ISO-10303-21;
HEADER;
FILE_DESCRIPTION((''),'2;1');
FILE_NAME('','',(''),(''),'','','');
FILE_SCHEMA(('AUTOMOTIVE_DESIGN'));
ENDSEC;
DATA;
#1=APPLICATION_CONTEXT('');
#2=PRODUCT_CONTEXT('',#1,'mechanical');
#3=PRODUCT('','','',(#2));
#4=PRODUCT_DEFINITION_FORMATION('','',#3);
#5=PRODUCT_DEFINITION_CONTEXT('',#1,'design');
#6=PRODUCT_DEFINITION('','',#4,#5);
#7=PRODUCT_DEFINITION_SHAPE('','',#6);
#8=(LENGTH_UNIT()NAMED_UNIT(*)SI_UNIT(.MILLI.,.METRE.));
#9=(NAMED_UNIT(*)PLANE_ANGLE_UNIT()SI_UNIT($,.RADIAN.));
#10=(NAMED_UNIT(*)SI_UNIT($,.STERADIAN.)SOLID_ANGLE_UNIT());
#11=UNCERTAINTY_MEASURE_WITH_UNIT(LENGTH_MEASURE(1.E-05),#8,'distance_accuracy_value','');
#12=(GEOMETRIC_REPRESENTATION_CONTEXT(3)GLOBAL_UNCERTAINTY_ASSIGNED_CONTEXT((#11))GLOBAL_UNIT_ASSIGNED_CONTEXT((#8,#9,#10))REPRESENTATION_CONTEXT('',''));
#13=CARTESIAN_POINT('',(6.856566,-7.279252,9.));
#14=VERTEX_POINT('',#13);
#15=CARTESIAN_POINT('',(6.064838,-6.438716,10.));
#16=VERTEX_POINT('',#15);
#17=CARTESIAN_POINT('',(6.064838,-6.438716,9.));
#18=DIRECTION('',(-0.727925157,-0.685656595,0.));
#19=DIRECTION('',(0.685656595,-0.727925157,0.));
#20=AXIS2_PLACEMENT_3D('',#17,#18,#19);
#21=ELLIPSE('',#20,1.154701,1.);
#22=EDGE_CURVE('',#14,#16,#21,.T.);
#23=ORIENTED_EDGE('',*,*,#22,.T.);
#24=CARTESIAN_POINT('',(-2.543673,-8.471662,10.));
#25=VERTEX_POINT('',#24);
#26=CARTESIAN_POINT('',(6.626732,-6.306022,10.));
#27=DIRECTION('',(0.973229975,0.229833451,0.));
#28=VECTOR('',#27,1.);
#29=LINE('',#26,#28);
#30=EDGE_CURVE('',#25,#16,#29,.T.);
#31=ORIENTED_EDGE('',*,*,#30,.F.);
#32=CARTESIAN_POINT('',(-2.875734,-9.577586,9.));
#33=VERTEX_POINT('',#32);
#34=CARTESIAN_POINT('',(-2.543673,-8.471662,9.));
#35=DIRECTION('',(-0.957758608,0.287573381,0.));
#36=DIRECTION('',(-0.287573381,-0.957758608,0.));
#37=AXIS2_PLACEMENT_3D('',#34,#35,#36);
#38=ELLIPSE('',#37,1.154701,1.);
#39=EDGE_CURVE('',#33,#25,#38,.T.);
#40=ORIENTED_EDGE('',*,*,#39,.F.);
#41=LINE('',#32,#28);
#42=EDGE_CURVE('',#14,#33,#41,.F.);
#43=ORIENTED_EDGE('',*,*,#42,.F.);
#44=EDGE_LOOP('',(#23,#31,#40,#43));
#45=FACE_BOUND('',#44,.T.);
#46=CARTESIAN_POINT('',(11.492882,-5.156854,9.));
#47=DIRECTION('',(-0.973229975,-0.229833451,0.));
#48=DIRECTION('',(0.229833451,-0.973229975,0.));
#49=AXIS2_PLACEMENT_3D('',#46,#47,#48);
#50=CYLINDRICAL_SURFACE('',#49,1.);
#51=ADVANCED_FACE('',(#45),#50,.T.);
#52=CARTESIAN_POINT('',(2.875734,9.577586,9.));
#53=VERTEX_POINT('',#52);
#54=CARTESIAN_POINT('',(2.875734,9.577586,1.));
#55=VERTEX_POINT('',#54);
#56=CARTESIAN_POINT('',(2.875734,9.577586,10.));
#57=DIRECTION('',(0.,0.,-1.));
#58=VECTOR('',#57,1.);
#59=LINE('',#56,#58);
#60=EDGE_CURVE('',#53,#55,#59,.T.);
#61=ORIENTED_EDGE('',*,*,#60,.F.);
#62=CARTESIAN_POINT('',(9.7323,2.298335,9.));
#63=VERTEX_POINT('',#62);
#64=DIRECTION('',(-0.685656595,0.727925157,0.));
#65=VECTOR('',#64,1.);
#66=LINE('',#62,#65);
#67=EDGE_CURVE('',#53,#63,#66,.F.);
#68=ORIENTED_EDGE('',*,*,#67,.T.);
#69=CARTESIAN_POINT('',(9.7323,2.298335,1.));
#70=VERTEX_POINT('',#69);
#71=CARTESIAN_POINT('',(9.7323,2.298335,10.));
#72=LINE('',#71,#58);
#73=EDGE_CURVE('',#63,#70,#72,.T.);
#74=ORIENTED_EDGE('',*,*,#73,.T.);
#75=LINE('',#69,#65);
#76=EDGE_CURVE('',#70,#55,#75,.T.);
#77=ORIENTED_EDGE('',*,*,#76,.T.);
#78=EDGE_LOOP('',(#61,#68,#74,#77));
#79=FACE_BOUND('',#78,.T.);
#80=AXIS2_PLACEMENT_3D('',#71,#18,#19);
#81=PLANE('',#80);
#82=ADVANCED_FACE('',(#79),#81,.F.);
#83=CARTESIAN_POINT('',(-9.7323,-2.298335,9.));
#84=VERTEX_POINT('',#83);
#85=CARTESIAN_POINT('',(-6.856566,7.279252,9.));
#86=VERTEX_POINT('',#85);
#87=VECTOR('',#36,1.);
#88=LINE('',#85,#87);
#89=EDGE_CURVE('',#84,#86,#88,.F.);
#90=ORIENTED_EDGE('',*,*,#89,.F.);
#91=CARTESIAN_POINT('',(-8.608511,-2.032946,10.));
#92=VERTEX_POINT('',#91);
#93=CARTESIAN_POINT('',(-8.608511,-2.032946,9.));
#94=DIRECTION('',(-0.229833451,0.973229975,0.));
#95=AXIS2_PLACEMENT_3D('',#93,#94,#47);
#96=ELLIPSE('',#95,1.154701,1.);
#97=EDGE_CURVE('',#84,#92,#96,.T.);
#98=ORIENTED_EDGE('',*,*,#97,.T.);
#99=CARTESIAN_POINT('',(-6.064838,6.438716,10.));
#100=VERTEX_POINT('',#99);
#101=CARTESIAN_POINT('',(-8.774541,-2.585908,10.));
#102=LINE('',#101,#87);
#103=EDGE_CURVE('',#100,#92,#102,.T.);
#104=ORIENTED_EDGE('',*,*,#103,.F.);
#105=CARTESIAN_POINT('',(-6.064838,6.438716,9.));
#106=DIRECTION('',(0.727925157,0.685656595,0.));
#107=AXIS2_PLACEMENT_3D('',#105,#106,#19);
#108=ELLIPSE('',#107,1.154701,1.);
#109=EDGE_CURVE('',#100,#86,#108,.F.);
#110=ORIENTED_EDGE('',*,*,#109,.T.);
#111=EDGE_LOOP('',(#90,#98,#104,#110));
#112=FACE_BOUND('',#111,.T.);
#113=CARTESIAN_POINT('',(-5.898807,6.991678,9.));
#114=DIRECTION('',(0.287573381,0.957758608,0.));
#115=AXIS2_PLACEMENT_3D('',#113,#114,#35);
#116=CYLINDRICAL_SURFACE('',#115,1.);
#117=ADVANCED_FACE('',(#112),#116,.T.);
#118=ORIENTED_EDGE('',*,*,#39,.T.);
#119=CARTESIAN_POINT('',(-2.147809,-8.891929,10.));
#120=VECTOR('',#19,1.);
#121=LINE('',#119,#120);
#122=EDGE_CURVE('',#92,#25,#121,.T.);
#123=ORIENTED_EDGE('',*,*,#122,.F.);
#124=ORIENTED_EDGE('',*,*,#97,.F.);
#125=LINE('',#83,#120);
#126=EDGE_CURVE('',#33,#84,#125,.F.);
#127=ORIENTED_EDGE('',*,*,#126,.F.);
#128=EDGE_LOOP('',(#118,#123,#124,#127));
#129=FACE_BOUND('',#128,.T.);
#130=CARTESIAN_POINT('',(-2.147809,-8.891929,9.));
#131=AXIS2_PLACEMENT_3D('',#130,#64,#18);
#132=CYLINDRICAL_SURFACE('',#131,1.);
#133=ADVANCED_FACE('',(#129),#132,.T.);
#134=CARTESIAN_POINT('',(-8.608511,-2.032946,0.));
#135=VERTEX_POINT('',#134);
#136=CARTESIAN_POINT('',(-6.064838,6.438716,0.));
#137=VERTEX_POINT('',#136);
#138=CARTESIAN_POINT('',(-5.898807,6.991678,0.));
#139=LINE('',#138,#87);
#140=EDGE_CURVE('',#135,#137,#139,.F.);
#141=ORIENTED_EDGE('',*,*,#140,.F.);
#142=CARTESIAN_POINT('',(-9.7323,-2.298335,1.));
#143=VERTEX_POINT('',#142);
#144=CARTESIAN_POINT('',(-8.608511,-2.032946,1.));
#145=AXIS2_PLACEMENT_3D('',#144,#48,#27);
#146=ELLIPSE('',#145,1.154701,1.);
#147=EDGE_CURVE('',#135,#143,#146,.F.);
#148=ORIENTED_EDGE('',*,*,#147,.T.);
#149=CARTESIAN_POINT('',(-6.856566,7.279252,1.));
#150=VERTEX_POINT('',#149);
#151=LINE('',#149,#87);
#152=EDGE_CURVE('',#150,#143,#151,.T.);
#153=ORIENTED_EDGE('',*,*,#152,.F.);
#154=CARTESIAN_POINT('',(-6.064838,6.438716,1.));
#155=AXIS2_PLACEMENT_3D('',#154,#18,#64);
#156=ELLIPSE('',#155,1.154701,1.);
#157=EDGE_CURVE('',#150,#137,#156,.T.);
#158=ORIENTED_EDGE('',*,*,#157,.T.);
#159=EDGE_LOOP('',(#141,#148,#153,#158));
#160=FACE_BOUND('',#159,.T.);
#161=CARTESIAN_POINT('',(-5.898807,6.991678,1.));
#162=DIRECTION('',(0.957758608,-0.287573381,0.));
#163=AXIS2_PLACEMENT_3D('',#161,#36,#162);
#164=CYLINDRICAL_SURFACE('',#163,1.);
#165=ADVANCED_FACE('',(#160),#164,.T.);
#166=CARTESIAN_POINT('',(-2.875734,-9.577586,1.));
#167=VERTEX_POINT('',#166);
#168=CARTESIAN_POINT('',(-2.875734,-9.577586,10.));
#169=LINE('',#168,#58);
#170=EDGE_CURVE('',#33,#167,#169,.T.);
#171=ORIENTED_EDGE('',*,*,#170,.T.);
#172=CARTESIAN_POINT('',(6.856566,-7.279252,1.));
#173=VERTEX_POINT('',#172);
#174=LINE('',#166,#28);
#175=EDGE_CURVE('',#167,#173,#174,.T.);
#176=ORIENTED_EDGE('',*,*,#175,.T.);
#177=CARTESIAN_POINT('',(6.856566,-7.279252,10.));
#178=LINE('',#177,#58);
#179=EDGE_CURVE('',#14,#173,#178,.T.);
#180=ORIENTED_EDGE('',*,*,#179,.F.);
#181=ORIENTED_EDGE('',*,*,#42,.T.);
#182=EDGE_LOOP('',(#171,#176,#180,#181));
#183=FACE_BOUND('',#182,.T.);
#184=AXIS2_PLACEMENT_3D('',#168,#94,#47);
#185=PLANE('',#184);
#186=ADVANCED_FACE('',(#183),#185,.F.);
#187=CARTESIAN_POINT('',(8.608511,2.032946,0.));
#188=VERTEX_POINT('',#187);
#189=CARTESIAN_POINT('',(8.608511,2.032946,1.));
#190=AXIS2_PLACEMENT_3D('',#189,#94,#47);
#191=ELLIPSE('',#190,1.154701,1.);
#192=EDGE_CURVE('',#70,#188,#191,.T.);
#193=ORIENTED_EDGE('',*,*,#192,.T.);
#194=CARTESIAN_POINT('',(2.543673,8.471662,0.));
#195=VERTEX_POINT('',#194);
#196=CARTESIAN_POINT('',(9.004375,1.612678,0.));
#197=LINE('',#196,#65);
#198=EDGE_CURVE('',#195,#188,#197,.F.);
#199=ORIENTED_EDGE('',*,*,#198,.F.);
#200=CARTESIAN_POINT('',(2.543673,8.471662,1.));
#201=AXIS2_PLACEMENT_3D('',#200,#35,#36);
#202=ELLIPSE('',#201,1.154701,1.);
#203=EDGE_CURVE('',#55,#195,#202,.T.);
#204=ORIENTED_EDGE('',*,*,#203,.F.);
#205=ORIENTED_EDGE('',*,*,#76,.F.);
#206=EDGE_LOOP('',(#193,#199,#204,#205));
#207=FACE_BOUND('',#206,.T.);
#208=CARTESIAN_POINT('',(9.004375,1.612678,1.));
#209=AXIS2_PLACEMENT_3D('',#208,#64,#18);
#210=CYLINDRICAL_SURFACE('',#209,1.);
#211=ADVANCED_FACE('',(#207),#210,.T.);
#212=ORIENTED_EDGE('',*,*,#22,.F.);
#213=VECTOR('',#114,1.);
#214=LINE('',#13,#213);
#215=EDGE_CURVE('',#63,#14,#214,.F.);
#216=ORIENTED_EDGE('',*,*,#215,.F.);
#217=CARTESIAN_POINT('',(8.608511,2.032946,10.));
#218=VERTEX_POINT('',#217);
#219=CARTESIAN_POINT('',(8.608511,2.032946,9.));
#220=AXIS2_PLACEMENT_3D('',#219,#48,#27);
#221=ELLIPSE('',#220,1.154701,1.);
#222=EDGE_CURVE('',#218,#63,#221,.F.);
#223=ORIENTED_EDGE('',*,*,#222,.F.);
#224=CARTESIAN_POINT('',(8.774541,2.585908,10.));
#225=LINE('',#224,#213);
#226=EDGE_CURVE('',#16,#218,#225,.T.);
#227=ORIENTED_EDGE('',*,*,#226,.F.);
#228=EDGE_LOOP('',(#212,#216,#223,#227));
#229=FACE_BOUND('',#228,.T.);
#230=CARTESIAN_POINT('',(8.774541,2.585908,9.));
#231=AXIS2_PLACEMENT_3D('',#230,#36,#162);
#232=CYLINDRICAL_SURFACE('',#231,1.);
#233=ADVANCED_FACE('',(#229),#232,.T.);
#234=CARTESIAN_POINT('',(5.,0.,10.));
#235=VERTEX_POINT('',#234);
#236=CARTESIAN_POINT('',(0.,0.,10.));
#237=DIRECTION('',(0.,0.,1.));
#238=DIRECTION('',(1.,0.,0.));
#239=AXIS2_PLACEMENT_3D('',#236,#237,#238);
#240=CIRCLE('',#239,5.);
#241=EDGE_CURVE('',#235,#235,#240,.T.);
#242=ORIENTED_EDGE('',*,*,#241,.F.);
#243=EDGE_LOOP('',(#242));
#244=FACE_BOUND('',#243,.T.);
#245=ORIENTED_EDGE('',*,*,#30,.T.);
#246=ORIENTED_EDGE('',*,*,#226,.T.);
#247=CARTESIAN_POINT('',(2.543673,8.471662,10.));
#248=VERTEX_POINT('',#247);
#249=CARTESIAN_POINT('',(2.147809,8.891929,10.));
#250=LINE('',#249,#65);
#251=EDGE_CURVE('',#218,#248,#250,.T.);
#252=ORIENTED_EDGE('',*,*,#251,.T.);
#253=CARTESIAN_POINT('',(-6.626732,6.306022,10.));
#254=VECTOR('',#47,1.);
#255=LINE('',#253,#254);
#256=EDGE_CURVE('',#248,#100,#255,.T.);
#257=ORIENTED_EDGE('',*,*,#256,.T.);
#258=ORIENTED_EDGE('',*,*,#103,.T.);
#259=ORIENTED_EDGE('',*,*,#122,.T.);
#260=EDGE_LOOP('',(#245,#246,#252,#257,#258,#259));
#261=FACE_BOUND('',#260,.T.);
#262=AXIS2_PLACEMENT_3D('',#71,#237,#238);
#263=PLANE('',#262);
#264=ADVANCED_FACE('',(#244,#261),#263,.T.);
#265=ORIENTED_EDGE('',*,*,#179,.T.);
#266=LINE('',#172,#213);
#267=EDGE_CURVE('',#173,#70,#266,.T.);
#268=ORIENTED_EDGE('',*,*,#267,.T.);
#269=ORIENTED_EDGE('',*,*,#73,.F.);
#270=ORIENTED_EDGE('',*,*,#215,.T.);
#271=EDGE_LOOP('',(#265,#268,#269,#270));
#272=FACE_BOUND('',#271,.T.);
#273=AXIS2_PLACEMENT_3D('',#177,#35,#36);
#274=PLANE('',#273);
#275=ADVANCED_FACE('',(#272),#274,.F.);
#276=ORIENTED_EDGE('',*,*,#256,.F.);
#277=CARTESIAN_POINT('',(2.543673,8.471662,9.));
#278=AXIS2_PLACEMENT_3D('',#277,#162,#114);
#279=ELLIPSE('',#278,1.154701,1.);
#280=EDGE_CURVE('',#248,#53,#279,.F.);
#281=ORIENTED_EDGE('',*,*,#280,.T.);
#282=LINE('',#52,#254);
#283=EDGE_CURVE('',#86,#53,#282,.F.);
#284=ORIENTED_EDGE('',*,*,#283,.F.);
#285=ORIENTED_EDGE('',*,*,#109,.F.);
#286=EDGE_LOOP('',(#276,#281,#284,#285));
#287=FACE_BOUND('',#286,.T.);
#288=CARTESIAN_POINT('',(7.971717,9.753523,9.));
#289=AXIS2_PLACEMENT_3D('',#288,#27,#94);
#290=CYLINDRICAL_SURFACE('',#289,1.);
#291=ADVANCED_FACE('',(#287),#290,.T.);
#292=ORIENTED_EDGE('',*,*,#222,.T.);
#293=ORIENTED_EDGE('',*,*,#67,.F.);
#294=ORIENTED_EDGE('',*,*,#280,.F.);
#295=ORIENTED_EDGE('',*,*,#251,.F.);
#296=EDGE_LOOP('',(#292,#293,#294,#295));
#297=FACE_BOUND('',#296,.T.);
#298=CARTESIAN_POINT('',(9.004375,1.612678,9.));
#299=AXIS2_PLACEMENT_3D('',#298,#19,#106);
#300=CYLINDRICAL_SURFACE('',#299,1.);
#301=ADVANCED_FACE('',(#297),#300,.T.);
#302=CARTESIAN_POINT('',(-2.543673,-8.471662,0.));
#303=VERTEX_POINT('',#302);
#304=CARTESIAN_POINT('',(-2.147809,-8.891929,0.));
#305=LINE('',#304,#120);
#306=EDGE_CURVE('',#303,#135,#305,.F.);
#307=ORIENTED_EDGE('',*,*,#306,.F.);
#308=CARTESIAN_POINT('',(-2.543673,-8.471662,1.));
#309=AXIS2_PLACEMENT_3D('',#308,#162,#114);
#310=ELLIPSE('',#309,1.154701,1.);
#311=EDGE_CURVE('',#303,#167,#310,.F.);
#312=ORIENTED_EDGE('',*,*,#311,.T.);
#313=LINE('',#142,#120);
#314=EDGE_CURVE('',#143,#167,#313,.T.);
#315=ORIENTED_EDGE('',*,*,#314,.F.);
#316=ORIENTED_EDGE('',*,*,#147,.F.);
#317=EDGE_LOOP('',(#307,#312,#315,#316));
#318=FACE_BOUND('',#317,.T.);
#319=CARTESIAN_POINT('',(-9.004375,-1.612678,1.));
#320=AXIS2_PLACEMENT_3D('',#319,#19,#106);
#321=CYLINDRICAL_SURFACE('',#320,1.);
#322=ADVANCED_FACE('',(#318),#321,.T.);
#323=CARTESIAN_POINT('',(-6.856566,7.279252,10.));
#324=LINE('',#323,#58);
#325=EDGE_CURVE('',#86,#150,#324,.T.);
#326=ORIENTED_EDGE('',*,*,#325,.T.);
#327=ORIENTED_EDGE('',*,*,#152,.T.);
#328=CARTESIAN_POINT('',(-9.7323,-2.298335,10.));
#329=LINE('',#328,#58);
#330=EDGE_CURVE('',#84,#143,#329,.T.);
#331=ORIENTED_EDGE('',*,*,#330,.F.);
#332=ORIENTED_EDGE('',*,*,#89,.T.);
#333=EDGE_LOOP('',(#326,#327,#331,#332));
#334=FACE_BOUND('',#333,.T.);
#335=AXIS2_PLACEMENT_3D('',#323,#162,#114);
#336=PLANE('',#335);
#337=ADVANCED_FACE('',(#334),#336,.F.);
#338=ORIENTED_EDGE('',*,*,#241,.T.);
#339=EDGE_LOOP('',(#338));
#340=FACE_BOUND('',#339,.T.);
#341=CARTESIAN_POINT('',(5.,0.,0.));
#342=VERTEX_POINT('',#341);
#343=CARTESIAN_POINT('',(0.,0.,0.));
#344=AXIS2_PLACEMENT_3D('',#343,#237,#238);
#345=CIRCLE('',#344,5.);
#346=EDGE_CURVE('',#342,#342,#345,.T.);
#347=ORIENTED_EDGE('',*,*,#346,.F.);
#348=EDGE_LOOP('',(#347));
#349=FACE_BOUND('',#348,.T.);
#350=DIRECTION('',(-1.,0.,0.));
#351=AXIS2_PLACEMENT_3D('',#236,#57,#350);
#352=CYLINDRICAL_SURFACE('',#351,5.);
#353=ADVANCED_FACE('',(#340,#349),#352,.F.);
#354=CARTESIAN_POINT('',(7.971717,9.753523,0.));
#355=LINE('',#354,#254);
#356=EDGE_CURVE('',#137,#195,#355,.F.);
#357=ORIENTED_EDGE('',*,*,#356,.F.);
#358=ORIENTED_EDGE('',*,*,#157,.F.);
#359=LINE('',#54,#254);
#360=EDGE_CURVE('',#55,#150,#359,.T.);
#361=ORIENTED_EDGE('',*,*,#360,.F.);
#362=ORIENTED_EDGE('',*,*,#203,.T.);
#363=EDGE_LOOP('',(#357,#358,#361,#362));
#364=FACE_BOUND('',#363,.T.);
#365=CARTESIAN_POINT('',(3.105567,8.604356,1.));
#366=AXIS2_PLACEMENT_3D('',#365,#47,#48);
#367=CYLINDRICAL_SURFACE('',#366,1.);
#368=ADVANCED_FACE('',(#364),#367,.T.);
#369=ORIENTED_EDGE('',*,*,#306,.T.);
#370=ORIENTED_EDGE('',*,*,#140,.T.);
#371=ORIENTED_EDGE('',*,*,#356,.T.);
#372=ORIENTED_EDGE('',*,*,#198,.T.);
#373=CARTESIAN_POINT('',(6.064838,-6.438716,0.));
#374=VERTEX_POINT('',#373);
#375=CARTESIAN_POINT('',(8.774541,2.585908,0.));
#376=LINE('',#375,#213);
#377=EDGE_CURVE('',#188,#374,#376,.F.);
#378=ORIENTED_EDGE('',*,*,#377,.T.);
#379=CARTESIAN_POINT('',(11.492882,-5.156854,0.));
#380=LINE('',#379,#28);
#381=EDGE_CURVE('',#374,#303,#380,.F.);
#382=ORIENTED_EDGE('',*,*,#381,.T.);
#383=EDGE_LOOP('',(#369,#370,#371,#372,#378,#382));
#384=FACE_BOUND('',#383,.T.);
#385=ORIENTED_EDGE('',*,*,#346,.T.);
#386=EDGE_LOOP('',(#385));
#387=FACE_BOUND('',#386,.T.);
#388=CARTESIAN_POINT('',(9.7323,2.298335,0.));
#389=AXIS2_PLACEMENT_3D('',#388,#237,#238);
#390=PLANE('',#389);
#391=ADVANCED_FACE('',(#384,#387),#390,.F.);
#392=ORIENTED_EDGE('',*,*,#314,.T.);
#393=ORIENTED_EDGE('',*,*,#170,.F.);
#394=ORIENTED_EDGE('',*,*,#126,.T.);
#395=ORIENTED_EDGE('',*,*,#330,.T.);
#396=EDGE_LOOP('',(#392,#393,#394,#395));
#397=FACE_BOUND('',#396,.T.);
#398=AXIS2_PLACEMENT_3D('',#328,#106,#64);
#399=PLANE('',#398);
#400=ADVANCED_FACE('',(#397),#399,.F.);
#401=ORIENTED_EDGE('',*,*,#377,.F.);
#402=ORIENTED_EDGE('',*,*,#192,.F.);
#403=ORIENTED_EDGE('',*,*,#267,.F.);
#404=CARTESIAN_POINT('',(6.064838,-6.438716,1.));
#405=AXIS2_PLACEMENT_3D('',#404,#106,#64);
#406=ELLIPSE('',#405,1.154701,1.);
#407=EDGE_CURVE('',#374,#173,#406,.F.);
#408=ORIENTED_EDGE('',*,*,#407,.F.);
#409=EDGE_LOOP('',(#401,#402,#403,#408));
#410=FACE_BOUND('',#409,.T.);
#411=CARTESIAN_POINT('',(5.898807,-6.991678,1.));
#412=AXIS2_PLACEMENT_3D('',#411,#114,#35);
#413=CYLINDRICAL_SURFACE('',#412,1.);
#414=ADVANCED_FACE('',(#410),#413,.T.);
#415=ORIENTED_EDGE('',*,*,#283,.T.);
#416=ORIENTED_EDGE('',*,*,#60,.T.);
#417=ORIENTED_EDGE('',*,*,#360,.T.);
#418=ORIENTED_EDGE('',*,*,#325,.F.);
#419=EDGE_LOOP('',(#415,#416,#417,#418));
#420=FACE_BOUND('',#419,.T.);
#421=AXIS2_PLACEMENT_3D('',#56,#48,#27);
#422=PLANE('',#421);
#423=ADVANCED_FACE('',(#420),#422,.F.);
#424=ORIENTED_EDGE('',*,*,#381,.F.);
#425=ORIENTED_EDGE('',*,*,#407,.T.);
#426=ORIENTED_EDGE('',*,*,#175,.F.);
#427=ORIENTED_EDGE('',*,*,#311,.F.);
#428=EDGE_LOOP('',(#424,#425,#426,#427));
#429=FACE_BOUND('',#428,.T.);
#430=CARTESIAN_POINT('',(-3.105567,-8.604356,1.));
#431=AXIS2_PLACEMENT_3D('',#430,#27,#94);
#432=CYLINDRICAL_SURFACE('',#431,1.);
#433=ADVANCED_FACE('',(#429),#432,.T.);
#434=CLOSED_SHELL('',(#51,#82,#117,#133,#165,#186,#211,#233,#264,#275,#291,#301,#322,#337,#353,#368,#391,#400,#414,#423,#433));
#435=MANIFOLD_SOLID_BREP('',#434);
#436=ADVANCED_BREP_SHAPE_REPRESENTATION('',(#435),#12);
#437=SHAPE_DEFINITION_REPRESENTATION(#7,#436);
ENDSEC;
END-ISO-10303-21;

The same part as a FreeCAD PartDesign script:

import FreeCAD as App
import Part
import Sketcher
from FreeCAD import Vector
Q = App.Units.Quantity


def edges_at(feature, points):
    """Names of the edges that pass closest to the given points."""
    edges = feature.Shape.Edges
    near = lambda p: min(range(len(edges)), key=lambda i: edges[i].distToShape(Part.Vertex(*p))[0])
    return sorted({f"Edge{near(p) + 1}" for p in points})


def add_polygon(sketch, points):
    """Adds a closed chain of lines whose ends are joined by coincident constraints."""
    first, n = sketch.GeometryCount, len(points)
    for a, b in zip(points, points[1:] + points[:1]):
        sketch.addGeometry(Part.LineSegment(App.Vector(*a, 0), App.Vector(*b, 0)), False)
    for i in range(n):
        sketch.addConstraint(Sketcher.Constraint("Coincident", first + i, 2, first + (i + 1) % n, 1))

doc = App.newDocument("Part")
body = doc.addObject("PartDesign::Body", "Body")

# Sketch on XY plane
sketch1 = body.newObject("Sketcher::SketchObject", "Sketch")
sketch1.AttachmentSupport = (doc.getObject("XY_Plane"), [""])
sketch1.MapMode = "FlatFace"
add_polygon(sketch1, [(10, 2), (3, 10), (-7, 7), (-10, -2), (-3, -10), (7, -7)])  # lines 0-5
sketch1.addGeometry(Part.Circle(Vector(0, 0, 0), Vector(0, 0, 1), 5), False)  # 6
sketch1.addConstraint([
    Sketcher.Constraint("Coincident", 6, 3, -1, 1),
    Sketcher.Constraint("Symmetric", 0, 2, 3, 2, -1, 1),
    Sketcher.Constraint("Symmetric", 1, 2, 4, 2, -1, 1),
    Sketcher.Constraint("Symmetric", 2, 2, 5, 2, -1, 1),
    Sketcher.Constraint("Equal", 0, 1),
    Sketcher.Constraint("Equal", 1, 2),
    Sketcher.Constraint("Diameter", 6, Q("10 mm")),
    Sketcher.Constraint("Distance", 0, Q("10 mm")),
    Sketcher.Constraint("DistanceX", 2, 2, -1, 1, Q("9.7323 mm")),
    Sketcher.Constraint("DistanceX", 1, 2, 0, 2, Q("9.7323 mm")),
    Sketcher.Constraint("DistanceY", -1, 1, 1, 2, Q("7.279252 mm")),
])
pad1 = body.newObject("PartDesign::Pad", "Pad")
pad1.Profile = sketch1
pad1.Length = 10
doc.recompute()

fillet = body.newObject("PartDesign::Fillet", "Fillet")
fillet.Base = (pad1, edges_at(pad1, [
    (-1.99, 8.428, 10),
    (-8.294, 2.49, 10),
    (-6.304, -5.938, 10),
    (1.99, -8.428, 10),
    (8.294, -2.49, 10),
    (1.99, -8.428, 0),
    (-6.304, -5.938, 0),
    (-8.294, 2.49, 0),
    (6.304, 5.938, 10),
    (-1.99, 8.428, 0),
    (6.304, 5.938, 0),
    (8.294, -2.49, 0),
]))
fillet.Radius = 1

doc.recompute()
